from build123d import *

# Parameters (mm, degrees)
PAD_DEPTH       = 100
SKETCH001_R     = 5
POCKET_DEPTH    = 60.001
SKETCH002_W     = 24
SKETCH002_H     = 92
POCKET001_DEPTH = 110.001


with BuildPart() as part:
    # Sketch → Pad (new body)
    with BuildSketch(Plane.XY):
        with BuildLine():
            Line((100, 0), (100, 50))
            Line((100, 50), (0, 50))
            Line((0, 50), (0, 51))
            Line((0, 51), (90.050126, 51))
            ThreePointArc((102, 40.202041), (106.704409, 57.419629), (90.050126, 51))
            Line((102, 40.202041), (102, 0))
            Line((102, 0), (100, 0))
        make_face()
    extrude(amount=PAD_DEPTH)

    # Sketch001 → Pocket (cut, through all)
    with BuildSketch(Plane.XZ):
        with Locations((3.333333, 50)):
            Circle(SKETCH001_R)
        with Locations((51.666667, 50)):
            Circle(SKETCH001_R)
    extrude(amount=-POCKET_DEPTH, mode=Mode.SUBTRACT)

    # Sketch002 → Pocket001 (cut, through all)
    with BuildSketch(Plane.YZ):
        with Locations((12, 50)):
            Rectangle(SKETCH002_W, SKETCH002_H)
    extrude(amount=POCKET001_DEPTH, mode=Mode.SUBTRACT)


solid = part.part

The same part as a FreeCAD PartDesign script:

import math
import FreeCAD as App
import Part
import Sketcher

V = App.Vector
Q = App.Units.Quantity


def add_polygon(sketch, points):
    """Adds a closed chain of lines whose ends are joined by coincident constraints."""
    first, n = sketch.GeometryCount, len(points)
    for a, b in zip(points, points[1:] + points[:1]):
        sketch.addGeometry(Part.LineSegment(App.Vector(*a, 0), App.Vector(*b, 0)), False)
    for i in range(n):
        sketch.addConstraint(Sketcher.Constraint("Coincident", first + i, 2, first + (i + 1) % n, 1))

doc = App.newDocument("Part")
body = doc.addObject("PartDesign::Body", "Body")

# Sketch on XY plane
sketch1 = body.newObject("Sketcher::SketchObject", "Sketch")
sketch1.AttachmentSupport = (doc.getObject("XY_Plane"), [""])
sketch1.MapMode = "FlatFace"
sketch1.addGeometry(Part.LineSegment(V(100, 50, 0), V(100, 0, 0)), False)
sketch1.addGeometry(Part.LineSegment(V(100, 0, 0), V(102, 0, 0)), False)
sketch1.addGeometry(Part.LineSegment(V(102, 0, 0), V(102, 40.202041, 0)), False)
sketch1.addGeometry(Part.ArcOfCircle(Part.Circle(V(100, 50, 0), V(0, 0, 1), 10), math.radians(-78.463042), math.radians(174.260828)), False)
sketch1.addGeometry(Part.LineSegment(V(90.050126, 51, 0), V(0, 51, 0)), False)
sketch1.addGeometry(Part.LineSegment(V(0, 51, 0), V(0, 50, 0)), False)
sketch1.addGeometry(Part.LineSegment(V(0, 50, 0), V(100, 50, 0)), False)
sketch1.addConstraint(Sketcher.Constraint("Coincident", 0, 2, 1, 1))
sketch1.addConstraint(Sketcher.Constraint("Coincident", 1, 2, 2, 1))
sketch1.addConstraint(Sketcher.Constraint("Coincident", 2, 2, 3, 1))
sketch1.addConstraint(Sketcher.Constraint("Coincident", 3, 2, 4, 1))
sketch1.addConstraint(Sketcher.Constraint("Coincident", 4, 2, 5, 1))
sketch1.addConstraint(Sketcher.Constraint("Coincident", 5, 2, 6, 1))
sketch1.addConstraint(Sketcher.Constraint("Coincident", 6, 2, 0, 1))
sketch1.addConstraint(Sketcher.Constraint("Vertical", 0))
sketch1.addConstraint(Sketcher.Constraint("Horizontal", 1))
sketch1.addConstraint(Sketcher.Constraint("Vertical", 2))
sketch1.addConstraint(Sketcher.Constraint("Horizontal", 4))
sketch1.addConstraint(Sketcher.Constraint("Vertical", 5))
sketch1.addConstraint(Sketcher.Constraint("Horizontal", 6))
sketch1.addConstraint(Sketcher.Constraint("Coincident", 6, 2, 3, 3))
sketch1.addConstraint(Sketcher.Constraint("PointOnObject", 0, 2, -1))
sketch1.addConstraint(Sketcher.Constraint("PointOnObject", 4, 2, -2))
sketch1.addConstraint(Sketcher.Constraint("Radius", 3, Q("10 mm")))
sketch1.addConstraint(Sketcher.Constraint("DistanceX", 1, 1, 1, 2, Q("2 mm")))
sketch1.addConstraint(Sketcher.Constraint("DistanceX", 6, 1, 6, 2, Q("100 mm")))
sketch1.addConstraint(Sketcher.Constraint("DistanceY", 0, 2, 0, 1, Q("50 mm")))
sketch1.addConstraint(Sketcher.Constraint("DistanceY", 5, 2, 5, 1, Q("1 mm")))
pad1 = body.newObject("PartDesign::Pad", "Pad")
pad1.Profile = sketch1
pad1.Length = 100

# Sketch on XZ plane
sketch2 = body.newObject("Sketcher::SketchObject", "Sketch001")
sketch2.AttachmentSupport = (doc.getObject("XZ_Plane"), [""])
sketch2.MapMode = "FlatFace"
sketch2.addGeometry(Part.Circle(V(3.333333, 50, 0), V(0, 0, 1), 5), False)
sketch2.addGeometry(Part.Circle(V(51.666667, 50, 0), V(0, 0, 1), 5), False)
sketch2.addConstraint(Sketcher.Constraint("Equal", 0, 1))
sketch2.addConstraint(Sketcher.Constraint("Horizontal", 0, 3, 1, 3))
sketch2.addConstraint(Sketcher.Constraint("Diameter", 0, Q("10 mm")))
sketch2.addConstraint(Sketcher.Constraint("DistanceY", -1, 1, 0, 3, Q("50 mm")))
sketch2.addConstraint(Sketcher.Constraint("DistanceX", -1, 1, 0, 3, Q("3.333333 mm")))
sketch2.addConstraint(Sketcher.Constraint("DistanceX", -1, 1, 1, 3, Q("51.666667 mm")))
pocket1 = body.newObject("PartDesign::Pocket", "Pocket")
pocket1.Profile = sketch2
pocket1.Type = "ThroughAll"

# Sketch on YZ plane
sketch3 = body.newObject("Sketcher::SketchObject", "Sketch002")
sketch3.AttachmentSupport = (doc.getObject("YZ_Plane"), [""])
sketch3.MapMode = "FlatFace"
add_polygon(sketch3, [(0, 96), (0, 4), (24, 4), (24, 96)])  # lines 0-3
sketch3.addConstraint(Sketcher.Constraint("Vertical", 0))
sketch3.addConstraint(Sketcher.Constraint("Horizontal", 1))
sketch3.addConstraint(Sketcher.Constraint("Vertical", 2))
sketch3.addConstraint(Sketcher.Constraint("Horizontal", 3))
sketch3.addConstraint(Sketcher.Constraint("PointOnObject", 0, 2, -2))
sketch3.addConstraint(Sketcher.Constraint("DistanceX", 1, 1, 1, 2, Q("24 mm")))
sketch3.addConstraint(Sketcher.Constraint("DistanceY", 0, 2, 0, 1, Q("92 mm")))
sketch3.addConstraint(Sketcher.Constraint("DistanceY", -1, 1, 0, 2, Q("4 mm")))
pocket2 = body.newObject("PartDesign::Pocket", "Pocket001")
pocket2.Profile = sketch3
pocket2.Type = "ThroughAll"
pocket2.Reversed = True

doc.recompute()
